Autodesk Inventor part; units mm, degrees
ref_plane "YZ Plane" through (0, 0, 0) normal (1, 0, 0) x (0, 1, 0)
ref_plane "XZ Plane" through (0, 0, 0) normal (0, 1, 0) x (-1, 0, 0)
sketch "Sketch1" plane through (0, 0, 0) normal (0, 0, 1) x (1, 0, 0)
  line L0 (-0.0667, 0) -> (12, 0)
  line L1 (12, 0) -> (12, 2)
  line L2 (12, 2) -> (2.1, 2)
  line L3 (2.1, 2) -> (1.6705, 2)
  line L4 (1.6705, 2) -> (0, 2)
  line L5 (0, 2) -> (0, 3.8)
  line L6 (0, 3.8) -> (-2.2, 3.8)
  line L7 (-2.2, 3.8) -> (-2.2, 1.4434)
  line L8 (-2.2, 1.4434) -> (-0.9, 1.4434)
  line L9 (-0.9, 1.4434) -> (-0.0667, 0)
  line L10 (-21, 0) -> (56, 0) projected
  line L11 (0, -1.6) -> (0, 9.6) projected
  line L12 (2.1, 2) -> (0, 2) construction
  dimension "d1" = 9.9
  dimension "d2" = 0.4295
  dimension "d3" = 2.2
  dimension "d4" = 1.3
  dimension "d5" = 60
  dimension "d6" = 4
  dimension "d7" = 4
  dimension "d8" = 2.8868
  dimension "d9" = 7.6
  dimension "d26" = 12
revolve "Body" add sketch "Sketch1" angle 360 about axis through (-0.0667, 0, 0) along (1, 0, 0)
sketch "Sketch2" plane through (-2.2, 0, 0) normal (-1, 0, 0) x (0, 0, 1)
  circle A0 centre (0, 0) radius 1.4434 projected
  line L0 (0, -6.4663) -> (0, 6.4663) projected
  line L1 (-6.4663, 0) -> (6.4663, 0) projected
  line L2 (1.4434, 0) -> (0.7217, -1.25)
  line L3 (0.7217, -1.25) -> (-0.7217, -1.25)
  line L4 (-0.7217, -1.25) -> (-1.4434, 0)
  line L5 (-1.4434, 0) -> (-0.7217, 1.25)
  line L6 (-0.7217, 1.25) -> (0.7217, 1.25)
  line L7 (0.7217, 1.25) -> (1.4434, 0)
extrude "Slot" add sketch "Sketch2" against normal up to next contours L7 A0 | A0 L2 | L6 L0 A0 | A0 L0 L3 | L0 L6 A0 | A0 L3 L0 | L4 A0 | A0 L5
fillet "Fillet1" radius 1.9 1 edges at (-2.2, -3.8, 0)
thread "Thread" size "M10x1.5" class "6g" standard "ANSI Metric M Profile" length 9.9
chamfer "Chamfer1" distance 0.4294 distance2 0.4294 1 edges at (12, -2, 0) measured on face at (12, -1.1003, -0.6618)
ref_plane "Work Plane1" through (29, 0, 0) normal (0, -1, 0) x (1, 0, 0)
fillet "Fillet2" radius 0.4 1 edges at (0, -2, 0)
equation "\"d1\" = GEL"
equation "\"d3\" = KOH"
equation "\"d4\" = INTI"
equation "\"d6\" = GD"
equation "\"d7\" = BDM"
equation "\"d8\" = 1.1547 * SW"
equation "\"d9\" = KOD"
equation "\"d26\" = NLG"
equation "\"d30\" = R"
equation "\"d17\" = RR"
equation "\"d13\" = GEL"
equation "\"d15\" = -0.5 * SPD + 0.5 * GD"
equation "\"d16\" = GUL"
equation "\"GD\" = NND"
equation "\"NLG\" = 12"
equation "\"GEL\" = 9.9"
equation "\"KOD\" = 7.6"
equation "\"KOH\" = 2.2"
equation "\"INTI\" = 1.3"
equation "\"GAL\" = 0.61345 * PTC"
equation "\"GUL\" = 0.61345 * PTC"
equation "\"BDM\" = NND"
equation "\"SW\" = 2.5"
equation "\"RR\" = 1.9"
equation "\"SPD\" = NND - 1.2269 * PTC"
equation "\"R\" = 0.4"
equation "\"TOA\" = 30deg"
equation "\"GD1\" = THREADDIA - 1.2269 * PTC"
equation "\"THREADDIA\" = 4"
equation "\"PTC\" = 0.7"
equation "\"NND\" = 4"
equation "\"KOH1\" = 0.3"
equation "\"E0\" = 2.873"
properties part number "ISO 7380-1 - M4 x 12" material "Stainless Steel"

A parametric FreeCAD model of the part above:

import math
import FreeCAD as App
import Part
import Sketcher
Q = App.Units.Quantity


def edges_at(feature, points):
    """Names of the edges that pass closest to the given points."""
    edges = feature.Shape.Edges
    near = lambda p: min(range(len(edges)), key=lambda i: edges[i].distToShape(Part.Vertex(*p))[0])
    return sorted({f"Edge{near(p) + 1}" for p in points})

doc = App.newDocument("Part")
params = doc.addObject("Spreadsheet::Sheet", "Params")
for row, (alias, value) in enumerate([
    ("sketch1_width", "12 mm"),
    ("sketch1_width2", "2.2 mm"),
    ("sketch1_width3", "1.3 mm"),
    ("sketch1_height", "2 mm"),
    ("sketch1_height2", "1.8 mm"),
    ("revolution_angle", "360 deg"),
    ("fillet_radius", "1.9 mm"),
    ("chamfer_size", "0.4294 mm"),
    ("chamfer_size2", "0.4294 mm"),
    ("fillet2_radius", "0.4 mm"),
], start=1):
    params.set(f"A{row}", alias)
    params.set(f"B{row}", "=" + value)
    params.setAlias(f"B{row}", alias)

body = doc.addObject("PartDesign::Body", "Body")

# Sketch on XY plane
sketch1 = body.newObject("Sketcher::SketchObject", "Sketch")
sketch1.AttachmentSupport = (doc.getObject("XY_Plane"), [""])
sketch1.MapMode = "FlatFace"
sketch1.addGeometry([
    Part.LineSegment(App.Vector(-0.9, 1.4, 0), App.Vector(-0.1, 0, 0)),  # 0
    Part.LineSegment(App.Vector(-0.1, 0, 0), App.Vector(12, 0, 0)),  # 1
    Part.LineSegment(App.Vector(12, 0, 0), App.Vector(12, 2, 0)),  # 2
    Part.LineSegment(App.Vector(12, 2, 0), App.Vector(0, 2, 0)),  # 3
    Part.LineSegment(App.Vector(0, 2, 0), App.Vector(0, 3.8, 0)),  # 4
    Part.LineSegment(App.Vector(0, 3.8, 0), App.Vector(-2.2, 3.8, 0)),  # 5
    Part.LineSegment(App.Vector(-2.2, 3.8, 0), App.Vector(-2.2, 1.4, 0)),  # 6
    Part.LineSegment(App.Vector(-2.2, 1.4, 0), App.Vector(-0.9, 1.4, 0)),  # 7
], False)
sketch1.addConstraint([
    Sketcher.Constraint("Coincident", 0, 2, 1, 1),
    Sketcher.Constraint("Coincident", 1, 2, 2, 1),
    Sketcher.Constraint("Coincident", 2, 2, 3, 1),
    Sketcher.Constraint("Coincident", 3, 2, 4, 1),
    Sketcher.Constraint("Coincident", 4, 2, 5, 1),
    Sketcher.Constraint("Coincident", 5, 2, 6, 1),
    Sketcher.Constraint("Coincident", 6, 2, 7, 1),
    Sketcher.Constraint("Coincident", 7, 2, 0, 1),
    Sketcher.Constraint("Horizontal", 1),
    Sketcher.Constraint("Vertical", 2),
    Sketcher.Constraint("Horizontal", 3),
    Sketcher.Constraint("Vertical", 4),
    Sketcher.Constraint("Horizontal", 5),
    Sketcher.Constraint("Vertical", 6),
    Sketcher.Constraint("Horizontal", 7),
    Sketcher.Constraint("PointOnObject", 0, 2, -1),
    Sketcher.Constraint("PointOnObject", 3, 2, -2),
    Sketcher.Constraint("DistanceX", 3, 2, 3, 1, Q("12 mm")),
    Sketcher.Constraint("DistanceX", 5, 2, 5, 1, Q("2.2 mm")),
    Sketcher.Constraint("DistanceX", 7, 1, 7, 2, Q("1.3 mm")),
    Sketcher.Constraint("DistanceY", 2, 1, 2, 2, Q("2 mm")),
    Sketcher.Constraint("DistanceY", 4, 1, 4, 2, Q("1.8 mm")),
    Sketcher.Constraint("DistanceX", 1, 1, 1, 2, Q("12.0667 mm")),
    Sketcher.Constraint("DistanceY", 6, 2, 6, 1, Q("2.3566 mm")),
])
sketch1.setExpression("Constraints[17]", "Params.sketch1_width")
sketch1.setExpression("Constraints[18]", "Params.sketch1_width2")
sketch1.setExpression("Constraints[19]", "Params.sketch1_width3")
sketch1.setExpression("Constraints[20]", "Params.sketch1_height")
sketch1.setExpression("Constraints[21]", "Params.sketch1_height2")
revolution = body.newObject("PartDesign::Revolution", "Revolution")
revolution.Profile = sketch1
revolution.ReferenceAxis = (sketch1, ["H_Axis"])
revolution.setExpression("Angle", "Params.revolution_angle")

# Sketch on YZ plane
sketch2 = body.newObject("Sketcher::SketchObject", "Sketch001")
sketch2.AttachmentSupport = (doc.getObject("YZ_Plane"), [""])
sketch2.MapMode = "FlatFace"
sketch2.AttachmentOffset = App.Placement(App.Vector(0, 0, -2.2), App.Rotation())
sketch2.addGeometry([
    Part.LineSegment(App.Vector(1.2, 0.7, 0), App.Vector(0, 1.4, 0)),  # 0
    Part.ArcOfCircle(Part.Circle(App.Vector(0, 0, 0), App.Vector(0, 0, 1), 1.4), math.radians(30), math.radians(90)),  # 1
    Part.ArcOfCircle(Part.Circle(App.Vector(0, 0, 0), App.Vector(0, 0, 1), 1.4), math.radians(90), math.radians(150)),  # 2
    Part.LineSegment(App.Vector(0, 1.4, 0), App.Vector(-1.2, 0.7, 0)),  # 3
    Part.ArcOfCircle(Part.Circle(App.Vector(0, 0, 0), App.Vector(0, 0, 1), 1.4), math.radians(-30), math.radians(30)),  # 4
    Part.LineSegment(App.Vector(1.2, 0.7, 0), App.Vector(1.2, -0.7, 0)),  # 5
    Part.LineSegment(App.Vector(-1.2, 0.7, 0), App.Vector(-1.2, -0.7, 0)),  # 6
    Part.ArcOfCircle(Part.Circle(App.Vector(0, 0, 0), App.Vector(0, 0, 1), 1.4), math.radians(150), math.radians(210)),  # 7
    Part.LineSegment(App.Vector(-1.2, -0.7, 0), App.Vector(0, -1.4, 0)),  # 8
    Part.ArcOfCircle(Part.Circle(App.Vector(0, 0, 0), App.Vector(0, 0, 1), 1.4), math.radians(-150), math.radians(-90)),  # 9
    Part.ArcOfCircle(Part.Circle(App.Vector(0, 0, 0), App.Vector(0, 0, 1), 1.4), math.radians(-90), math.radians(-30)),  # 10
    Part.LineSegment(App.Vector(0, -1.4, 0), App.Vector(1.2, -0.7, 0)),  # 11
], False)
sketch2.addConstraint([
    Sketcher.Constraint("Coincident", 0, 1, 1, 1),
    Sketcher.Constraint("Coincident", 1, 2, 0, 2),
    Sketcher.Constraint("Coincident", 2, 1, 3, 1),
    Sketcher.Constraint("Coincident", 3, 2, 2, 2),
    Sketcher.Constraint("Coincident", 4, 1, 5, 2),
    Sketcher.Constraint("Coincident", 5, 1, 4, 2),
    Sketcher.Constraint("Coincident", 6, 1, 7, 1),
    Sketcher.Constraint("Coincident", 7, 2, 6, 2),
    Sketcher.Constraint("Coincident", 8, 1, 9, 1),
    Sketcher.Constraint("Coincident", 9, 2, 8, 2),
    Sketcher.Constraint("Coincident", 10, 1, 11, 1),
    Sketcher.Constraint("Coincident", 11, 2, 10, 2),
    Sketcher.Constraint("Vertical", 5),
    Sketcher.Constraint("Vertical", 6),
    Sketcher.Constraint("Coincident", 1, 3, -1, 1),
    Sketcher.Constraint("Coincident", 2, 3, -1, 1),
    Sketcher.Constraint("Coincident", 4, 3, -1, 1),
    Sketcher.Constraint("Coincident", 7, 3, -1, 1),
    Sketcher.Constraint("Coincident", 9, 3, -1, 1),
    Sketcher.Constraint("Coincident", 10, 3, -1, 1),
    Sketcher.Constraint("Coincident", 2, 1, 1, 2),
    Sketcher.Constraint("Coincident", 5, 1, 0, 1),
    Sketcher.Constraint("Coincident", 6, 1, 3, 2),
    Sketcher.Constraint("Coincident", 8, 1, 7, 2),
    Sketcher.Constraint("Coincident", 10, 1, 9, 2),
    Sketcher.Constraint("PointOnObject", 1, 2, -2),
    Sketcher.Constraint("PointOnObject", 9, 2, -2),
    Sketcher.Constraint("Parallel", 0, 8),
    Sketcher.Constraint("Parallel", 3, 11),
    Sketcher.Constraint("Angle", 0, Q("149.9996 deg")),
    Sketcher.Constraint("Radius", 1, Q("1.4434 mm")),
])
pad1 = body.newObject("PartDesign::Pad", "Pad")
pad1.Profile = sketch2
pad1.Type = "UpToFirst"
doc.recompute()

fillet = body.newObject("PartDesign::Fillet", "Fillet")
fillet.Base = (pad1, edges_at(pad1, [(-2.2, -3.8, 0)]))
fillet.setExpression("Radius", "Params.fillet_radius")
doc.recompute()

chamfer = body.newObject("PartDesign::Chamfer", "Chamfer")
chamfer.Base = (fillet, edges_at(fillet, [(12, -2, 0)]))
chamfer.ChamferType = "Two distances"
chamfer.setExpression("Size", "Params.chamfer_size")
chamfer.setExpression("Size2", "Params.chamfer_size2")
doc.recompute()

fillet2 = body.newObject("PartDesign::Fillet", "Fillet001")
fillet2.Base = (chamfer, edges_at(chamfer, [(0, -2, 0)]))
fillet2.setExpression("Radius", "Params.fillet2_radius")

doc.recompute()
